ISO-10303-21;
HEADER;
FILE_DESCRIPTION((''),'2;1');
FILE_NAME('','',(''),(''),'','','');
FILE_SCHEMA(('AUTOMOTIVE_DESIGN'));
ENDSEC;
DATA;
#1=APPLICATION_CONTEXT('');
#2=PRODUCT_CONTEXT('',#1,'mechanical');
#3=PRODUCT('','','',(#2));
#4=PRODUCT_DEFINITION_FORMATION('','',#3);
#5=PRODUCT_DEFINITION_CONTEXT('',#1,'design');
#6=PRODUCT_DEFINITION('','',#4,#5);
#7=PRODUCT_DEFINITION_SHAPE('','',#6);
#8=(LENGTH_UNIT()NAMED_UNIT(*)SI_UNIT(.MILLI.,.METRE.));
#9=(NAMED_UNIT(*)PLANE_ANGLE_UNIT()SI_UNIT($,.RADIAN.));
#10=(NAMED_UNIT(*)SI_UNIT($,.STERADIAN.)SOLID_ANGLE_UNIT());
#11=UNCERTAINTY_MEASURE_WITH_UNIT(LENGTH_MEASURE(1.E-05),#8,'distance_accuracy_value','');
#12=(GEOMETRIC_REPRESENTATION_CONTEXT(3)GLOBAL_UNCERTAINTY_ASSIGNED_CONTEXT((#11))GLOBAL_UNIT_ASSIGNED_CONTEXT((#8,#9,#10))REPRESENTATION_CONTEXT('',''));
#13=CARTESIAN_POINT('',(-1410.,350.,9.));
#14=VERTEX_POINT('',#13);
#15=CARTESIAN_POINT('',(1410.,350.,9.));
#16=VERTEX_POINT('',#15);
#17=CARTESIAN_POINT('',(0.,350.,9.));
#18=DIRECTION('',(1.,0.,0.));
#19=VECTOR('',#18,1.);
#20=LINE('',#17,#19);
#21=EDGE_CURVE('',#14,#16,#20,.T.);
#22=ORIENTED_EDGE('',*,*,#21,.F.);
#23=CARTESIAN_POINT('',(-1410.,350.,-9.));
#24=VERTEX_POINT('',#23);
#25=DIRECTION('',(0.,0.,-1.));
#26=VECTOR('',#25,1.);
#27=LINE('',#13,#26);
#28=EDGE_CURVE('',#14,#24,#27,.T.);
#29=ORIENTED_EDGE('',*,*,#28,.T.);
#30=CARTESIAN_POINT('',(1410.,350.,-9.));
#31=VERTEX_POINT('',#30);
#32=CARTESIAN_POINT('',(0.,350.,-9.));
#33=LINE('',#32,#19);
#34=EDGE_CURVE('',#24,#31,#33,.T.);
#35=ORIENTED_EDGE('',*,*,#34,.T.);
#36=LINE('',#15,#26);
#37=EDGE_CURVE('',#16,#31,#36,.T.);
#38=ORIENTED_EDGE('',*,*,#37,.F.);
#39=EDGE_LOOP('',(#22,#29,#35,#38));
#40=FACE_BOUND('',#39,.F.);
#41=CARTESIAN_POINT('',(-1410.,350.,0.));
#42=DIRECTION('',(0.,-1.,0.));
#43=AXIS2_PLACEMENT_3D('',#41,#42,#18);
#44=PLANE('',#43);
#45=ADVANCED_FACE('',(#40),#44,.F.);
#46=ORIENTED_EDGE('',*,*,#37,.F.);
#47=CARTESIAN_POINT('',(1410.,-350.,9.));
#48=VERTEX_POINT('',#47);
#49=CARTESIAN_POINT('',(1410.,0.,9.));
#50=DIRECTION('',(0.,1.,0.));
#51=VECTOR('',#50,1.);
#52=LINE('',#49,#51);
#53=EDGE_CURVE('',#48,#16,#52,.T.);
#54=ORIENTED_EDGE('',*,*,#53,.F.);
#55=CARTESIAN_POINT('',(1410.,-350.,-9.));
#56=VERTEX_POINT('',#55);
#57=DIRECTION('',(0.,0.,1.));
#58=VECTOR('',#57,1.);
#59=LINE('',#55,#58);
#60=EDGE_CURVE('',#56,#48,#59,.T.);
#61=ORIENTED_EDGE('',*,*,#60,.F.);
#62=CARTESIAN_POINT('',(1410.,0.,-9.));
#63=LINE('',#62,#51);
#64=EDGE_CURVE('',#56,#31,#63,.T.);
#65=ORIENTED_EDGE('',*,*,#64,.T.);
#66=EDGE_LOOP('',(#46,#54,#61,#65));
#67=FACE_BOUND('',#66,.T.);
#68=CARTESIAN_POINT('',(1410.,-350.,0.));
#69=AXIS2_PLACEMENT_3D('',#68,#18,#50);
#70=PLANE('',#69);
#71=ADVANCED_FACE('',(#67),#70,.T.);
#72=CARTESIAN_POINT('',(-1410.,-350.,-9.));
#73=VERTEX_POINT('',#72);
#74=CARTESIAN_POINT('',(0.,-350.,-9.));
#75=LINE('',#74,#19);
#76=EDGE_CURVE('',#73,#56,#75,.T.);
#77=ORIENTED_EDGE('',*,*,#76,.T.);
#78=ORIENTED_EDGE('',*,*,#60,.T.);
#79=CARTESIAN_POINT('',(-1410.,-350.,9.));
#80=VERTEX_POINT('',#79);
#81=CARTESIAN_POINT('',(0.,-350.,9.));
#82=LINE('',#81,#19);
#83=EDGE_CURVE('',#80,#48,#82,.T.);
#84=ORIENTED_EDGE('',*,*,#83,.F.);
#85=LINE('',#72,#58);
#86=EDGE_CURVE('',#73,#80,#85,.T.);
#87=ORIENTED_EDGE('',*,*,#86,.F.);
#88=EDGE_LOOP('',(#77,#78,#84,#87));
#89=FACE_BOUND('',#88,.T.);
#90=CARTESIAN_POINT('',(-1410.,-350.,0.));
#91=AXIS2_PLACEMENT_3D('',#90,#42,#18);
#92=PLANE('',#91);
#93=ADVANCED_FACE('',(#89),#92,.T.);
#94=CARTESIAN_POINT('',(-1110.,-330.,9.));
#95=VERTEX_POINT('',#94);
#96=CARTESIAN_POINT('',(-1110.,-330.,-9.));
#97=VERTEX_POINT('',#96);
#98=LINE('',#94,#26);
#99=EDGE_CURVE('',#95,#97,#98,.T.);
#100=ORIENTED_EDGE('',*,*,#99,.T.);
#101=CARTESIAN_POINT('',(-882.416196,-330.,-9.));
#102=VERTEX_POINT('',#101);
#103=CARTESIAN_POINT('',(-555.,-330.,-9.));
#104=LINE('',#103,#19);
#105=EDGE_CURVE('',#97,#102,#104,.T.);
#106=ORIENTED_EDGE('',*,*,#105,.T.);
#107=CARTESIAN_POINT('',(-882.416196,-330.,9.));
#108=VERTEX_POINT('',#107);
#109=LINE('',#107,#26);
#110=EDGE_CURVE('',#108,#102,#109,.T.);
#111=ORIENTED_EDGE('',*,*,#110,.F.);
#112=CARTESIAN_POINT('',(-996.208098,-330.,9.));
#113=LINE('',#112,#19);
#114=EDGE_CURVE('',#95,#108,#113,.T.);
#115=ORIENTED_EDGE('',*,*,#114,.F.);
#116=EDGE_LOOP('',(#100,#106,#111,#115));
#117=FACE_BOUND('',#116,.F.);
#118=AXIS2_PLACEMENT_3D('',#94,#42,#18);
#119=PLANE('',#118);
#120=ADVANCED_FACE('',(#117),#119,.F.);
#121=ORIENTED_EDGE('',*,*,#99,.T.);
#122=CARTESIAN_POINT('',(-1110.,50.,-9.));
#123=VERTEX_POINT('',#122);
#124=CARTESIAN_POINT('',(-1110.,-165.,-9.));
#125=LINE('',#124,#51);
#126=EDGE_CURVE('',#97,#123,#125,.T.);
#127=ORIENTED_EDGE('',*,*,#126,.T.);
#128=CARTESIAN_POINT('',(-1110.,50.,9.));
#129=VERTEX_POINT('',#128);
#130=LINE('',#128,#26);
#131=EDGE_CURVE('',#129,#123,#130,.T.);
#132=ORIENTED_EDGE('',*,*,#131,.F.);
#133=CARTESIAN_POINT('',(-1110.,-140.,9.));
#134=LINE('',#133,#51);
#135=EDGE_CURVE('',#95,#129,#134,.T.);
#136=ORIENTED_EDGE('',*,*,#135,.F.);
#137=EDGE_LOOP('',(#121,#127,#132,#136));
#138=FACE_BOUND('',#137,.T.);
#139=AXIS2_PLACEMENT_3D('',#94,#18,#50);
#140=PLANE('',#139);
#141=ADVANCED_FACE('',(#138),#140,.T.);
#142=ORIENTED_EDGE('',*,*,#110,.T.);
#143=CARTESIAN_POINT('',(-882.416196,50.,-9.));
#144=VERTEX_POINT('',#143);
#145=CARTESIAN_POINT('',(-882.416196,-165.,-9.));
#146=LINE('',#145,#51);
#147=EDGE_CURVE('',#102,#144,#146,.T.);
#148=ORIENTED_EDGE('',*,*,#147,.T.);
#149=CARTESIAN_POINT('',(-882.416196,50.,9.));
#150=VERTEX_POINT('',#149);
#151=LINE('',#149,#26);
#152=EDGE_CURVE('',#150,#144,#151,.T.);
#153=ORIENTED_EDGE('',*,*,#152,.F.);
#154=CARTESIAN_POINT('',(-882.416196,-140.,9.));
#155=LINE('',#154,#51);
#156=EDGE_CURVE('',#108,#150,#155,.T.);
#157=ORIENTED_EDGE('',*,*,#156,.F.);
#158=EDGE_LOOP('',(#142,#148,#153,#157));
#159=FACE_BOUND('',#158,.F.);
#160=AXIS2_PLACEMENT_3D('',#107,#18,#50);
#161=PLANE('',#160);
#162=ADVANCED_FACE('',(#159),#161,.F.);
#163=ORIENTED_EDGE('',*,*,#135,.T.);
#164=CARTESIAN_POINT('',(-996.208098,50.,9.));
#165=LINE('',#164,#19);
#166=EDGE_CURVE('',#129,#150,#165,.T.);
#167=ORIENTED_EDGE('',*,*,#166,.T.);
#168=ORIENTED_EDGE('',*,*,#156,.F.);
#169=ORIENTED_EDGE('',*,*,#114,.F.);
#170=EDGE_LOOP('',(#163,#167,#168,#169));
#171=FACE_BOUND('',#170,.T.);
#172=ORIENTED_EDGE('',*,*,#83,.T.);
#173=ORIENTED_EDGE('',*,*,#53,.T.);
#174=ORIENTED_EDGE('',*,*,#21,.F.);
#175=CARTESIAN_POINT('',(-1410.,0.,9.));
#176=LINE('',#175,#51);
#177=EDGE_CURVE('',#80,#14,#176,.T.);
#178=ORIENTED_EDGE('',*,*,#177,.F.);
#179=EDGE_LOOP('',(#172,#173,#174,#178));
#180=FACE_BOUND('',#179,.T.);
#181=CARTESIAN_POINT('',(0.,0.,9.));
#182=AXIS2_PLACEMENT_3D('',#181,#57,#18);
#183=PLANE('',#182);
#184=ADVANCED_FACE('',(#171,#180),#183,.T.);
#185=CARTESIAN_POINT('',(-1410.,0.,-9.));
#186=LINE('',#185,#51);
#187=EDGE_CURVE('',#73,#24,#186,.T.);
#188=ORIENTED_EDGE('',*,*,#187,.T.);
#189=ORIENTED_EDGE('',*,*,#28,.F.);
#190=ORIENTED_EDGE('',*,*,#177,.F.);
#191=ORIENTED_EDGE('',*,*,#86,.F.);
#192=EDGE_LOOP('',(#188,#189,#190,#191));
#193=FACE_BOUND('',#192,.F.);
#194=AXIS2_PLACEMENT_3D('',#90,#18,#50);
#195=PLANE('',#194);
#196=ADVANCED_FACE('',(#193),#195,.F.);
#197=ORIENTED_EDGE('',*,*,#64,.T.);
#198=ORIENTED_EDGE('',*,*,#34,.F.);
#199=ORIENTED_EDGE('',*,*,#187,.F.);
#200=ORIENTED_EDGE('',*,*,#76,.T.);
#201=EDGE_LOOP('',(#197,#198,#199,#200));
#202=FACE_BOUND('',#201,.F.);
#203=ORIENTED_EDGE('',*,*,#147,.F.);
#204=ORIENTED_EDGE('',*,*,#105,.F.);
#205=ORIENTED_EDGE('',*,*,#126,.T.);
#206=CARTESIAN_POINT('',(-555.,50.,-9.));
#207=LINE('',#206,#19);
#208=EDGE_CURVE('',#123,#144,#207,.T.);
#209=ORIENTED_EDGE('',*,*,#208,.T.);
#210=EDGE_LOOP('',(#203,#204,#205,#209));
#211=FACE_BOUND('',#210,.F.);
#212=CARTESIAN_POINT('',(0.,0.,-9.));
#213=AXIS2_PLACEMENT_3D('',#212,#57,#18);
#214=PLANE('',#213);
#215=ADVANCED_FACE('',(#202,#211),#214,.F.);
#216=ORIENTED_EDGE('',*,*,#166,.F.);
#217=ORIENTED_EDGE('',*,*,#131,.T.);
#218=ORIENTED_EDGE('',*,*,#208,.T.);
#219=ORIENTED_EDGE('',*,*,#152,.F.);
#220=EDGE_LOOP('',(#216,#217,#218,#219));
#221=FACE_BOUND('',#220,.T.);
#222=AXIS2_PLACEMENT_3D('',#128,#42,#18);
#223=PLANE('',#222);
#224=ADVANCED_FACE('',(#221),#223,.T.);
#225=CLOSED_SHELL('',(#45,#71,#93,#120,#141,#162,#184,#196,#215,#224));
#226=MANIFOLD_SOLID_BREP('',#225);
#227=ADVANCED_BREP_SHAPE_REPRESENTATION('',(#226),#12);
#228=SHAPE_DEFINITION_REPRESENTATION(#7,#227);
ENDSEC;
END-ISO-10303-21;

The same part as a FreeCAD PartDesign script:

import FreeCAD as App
import Part
import Sketcher

V = App.Vector

doc = App.newDocument("Part")
body = doc.addObject("PartDesign::Body", "Body")

sketch1 = body.newObject("Sketcher::SketchObject", "Sketch")
sketch1.AttachmentSupport = (doc.getObject("XY_Plane"), [""])
sketch1.MapMode = "FlatFace"
sketch1.addGeometry(Part.LineSegment(V(-1410, 350, 0), V(-1410, -350, 0)), False)
sketch1.addGeometry(Part.LineSegment(V(-1410, -350, 0), V(1410, -350, 0)), False)
sketch1.addGeometry(Part.LineSegment(V(1410, -350, 0), V(1410, 350, 0)), False)
sketch1.addGeometry(Part.LineSegment(V(1410, 350, 0), V(-1410, 350, 0)), False)
sketch1.addConstraint(Sketcher.Constraint("Coincident", 0, 2, 1, 1))
sketch1.addConstraint(Sketcher.Constraint("Coincident", 1, 2, 2, 1))
sketch1.addConstraint(Sketcher.Constraint("Coincident", 2, 2, 3, 1))
sketch1.addConstraint(Sketcher.Constraint("Coincident", 3, 2, 0, 1))
sketch1.addConstraint(Sketcher.Constraint("Vertical", 0))
sketch1.addConstraint(Sketcher.Constraint("Horizontal", 1))
sketch1.addConstraint(Sketcher.Constraint("Vertical", 2))
sketch1.addConstraint(Sketcher.Constraint("Horizontal", 3))
sketch1.addConstraint(Sketcher.Constraint("Symmetric", 0, 2, 2, 2, -1, 1))
sketch1.addConstraint(Sketcher.Constraint("DistanceX", 1, 1, 1, 2, 2820.0))
sketch1.addConstraint(Sketcher.Constraint("DistanceY", 0, 2, 0, 1, 700.0))
pad1 = body.newObject("PartDesign::Pad", "Pad")
pad1.Profile = sketch1
pad1.Length = 18
pad1.Midplane = True

sketch2 = body.newObject("Sketcher::SketchObject", "Sketch001")
sketch2.AttachmentSupport = (doc.getObject("XY_Plane"), [""])
sketch2.MapMode = "FlatFace"
sketch2.AttachmentOffset = App.Placement(V(0, 0, 9), App.Rotation())
sketch2.addGeometry(Part.LineSegment(V(-1110, 50, 0), V(-1110, -330, 0)), False)
sketch2.addGeometry(Part.LineSegment(V(-1110, -330, 0), V(-882, -330, 0)), False)
sketch2.addGeometry(Part.LineSegment(V(-882, -330, 0), V(-882, 50, 0)), False)
sketch2.addGeometry(Part.LineSegment(V(-882, 50, 0), V(-1110, 50, 0)), False)
sketch2.addConstraint(Sketcher.Constraint("Coincident", 0, 2, 1, 1))
sketch2.addConstraint(Sketcher.Constraint("Coincident", 1, 2, 2, 1))
sketch2.addConstraint(Sketcher.Constraint("Coincident", 2, 2, 3, 1))
sketch2.addConstraint(Sketcher.Constraint("Coincident", 3, 2, 0, 1))
sketch2.addConstraint(Sketcher.Constraint("Vertical", 0))
sketch2.addConstraint(Sketcher.Constraint("Horizontal", 1))
sketch2.addConstraint(Sketcher.Constraint("Vertical", 2))
sketch2.addConstraint(Sketcher.Constraint("Horizontal", 3))
sketch2.addConstraint(Sketcher.Constraint("DistanceY", 0, 2, 0, 1, 380.0))
sketch2.addConstraint(Sketcher.Constraint("DistanceX", 0, 2, -1, 1, 1110.0))
sketch2.addConstraint(Sketcher.Constraint("DistanceY", 0, 2, -1, 1, 330.0))
sketch2.addConstraint(Sketcher.Constraint("DistanceX", 1, 1, 1, 2, 227.583804))
pocket1 = body.newObject("PartDesign::Pocket", "Pocket")
pocket1.Profile = sketch2
pocket1.Length = 25

doc.recompute()
